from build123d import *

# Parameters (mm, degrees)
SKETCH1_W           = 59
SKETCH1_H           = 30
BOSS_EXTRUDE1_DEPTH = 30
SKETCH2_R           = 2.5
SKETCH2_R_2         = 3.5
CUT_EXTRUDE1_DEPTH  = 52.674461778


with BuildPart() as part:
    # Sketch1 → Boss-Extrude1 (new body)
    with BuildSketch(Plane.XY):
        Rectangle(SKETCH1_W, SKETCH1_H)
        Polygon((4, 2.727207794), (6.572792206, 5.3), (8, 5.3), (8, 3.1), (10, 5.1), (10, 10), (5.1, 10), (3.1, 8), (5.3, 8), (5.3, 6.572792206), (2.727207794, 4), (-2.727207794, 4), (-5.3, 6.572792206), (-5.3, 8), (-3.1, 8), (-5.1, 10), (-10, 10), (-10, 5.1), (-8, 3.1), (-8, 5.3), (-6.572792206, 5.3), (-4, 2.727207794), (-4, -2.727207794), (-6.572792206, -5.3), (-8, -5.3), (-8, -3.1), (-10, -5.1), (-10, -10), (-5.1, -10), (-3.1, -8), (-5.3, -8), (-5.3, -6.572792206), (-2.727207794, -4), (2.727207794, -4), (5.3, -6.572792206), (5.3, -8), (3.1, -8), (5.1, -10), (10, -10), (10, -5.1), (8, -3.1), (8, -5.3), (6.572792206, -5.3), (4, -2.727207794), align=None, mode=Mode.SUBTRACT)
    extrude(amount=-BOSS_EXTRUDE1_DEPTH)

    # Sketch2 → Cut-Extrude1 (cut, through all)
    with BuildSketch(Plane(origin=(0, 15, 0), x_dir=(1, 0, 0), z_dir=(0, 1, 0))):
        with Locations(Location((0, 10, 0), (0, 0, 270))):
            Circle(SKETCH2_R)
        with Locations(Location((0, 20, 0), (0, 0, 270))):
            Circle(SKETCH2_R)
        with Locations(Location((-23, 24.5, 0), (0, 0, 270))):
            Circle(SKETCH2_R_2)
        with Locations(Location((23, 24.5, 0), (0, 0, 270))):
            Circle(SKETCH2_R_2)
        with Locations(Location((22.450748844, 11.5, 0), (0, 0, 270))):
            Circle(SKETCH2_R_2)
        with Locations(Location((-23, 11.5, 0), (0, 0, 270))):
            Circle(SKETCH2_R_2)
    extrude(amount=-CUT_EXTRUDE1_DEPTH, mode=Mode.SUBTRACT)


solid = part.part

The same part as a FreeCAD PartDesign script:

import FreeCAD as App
import Part
import Sketcher
from FreeCAD import Vector

doc = App.newDocument("Part")
params = doc.addObject("Spreadsheet::Sheet", "Params")
for row, (alias, value) in enumerate([
    ("sketch1_width", "59 mm"),
    ("sketch1_height", "30 mm"),
    ("sketch1_width2", "4.9 mm"),
    ("sketch1_width3", "2.2 mm"),
    ("pad1_length", "30 mm"),
    ("sketch2_diameter", "5 mm"),
    ("sketch2_diameter2", "7 mm"),
], start=1):
    params.set(f"A{row}", alias)
    params.set(f"B{row}", "=" + value)
    params.setAlias(f"B{row}", alias)

body = doc.addObject("PartDesign::Body", "Body")

# Sketch on XY plane
sketch1 = body.newObject("Sketcher::SketchObject", "Sketch")
sketch1.AttachmentSupport = (doc.getObject("XY_Plane"), [""])
sketch1.MapMode = "FlatFace"
sketch1.addGeometry([
    Part.LineSegment(Vector(-29.5, 15, 0), Vector(-29.5, -15, 0)),  # 0
    Part.LineSegment(Vector(-29.5, -15, 0), Vector(29.5, -15, 0)),  # 1
    Part.LineSegment(Vector(29.5, -15, 0), Vector(29.5, 15, 0)),  # 2
    Part.LineSegment(Vector(29.5, 15, 0), Vector(-29.5, 15, 0)),  # 3
    Part.LineSegment(Vector(6.572792, 5.3, 0), Vector(4, 2.727208, 0)),  # 4
    Part.LineSegment(Vector(4, 2.727208, 0), Vector(4, -2.727208, 0)),  # 5
    Part.LineSegment(Vector(4, -2.727208, 0), Vector(6.572792, -5.3, 0)),  # 6
    Part.LineSegment(Vector(6.572792, -5.3, 0), Vector(8, -5.3, 0)),  # 7
    Part.LineSegment(Vector(8, -5.3, 0), Vector(8, -3.1, 0)),  # 8
    Part.LineSegment(Vector(8, -3.1, 0), Vector(10, -5.1, 0)),  # 9
    Part.LineSegment(Vector(10, -5.1, 0), Vector(10, -10, 0)),  # 10
    Part.LineSegment(Vector(10, -10, 0), Vector(5.1, -10, 0)),  # 11
    Part.LineSegment(Vector(5.1, -10, 0), Vector(3.1, -8, 0)),  # 12
    Part.LineSegment(Vector(3.1, -8, 0), Vector(5.3, -8, 0)),  # 13
    Part.LineSegment(Vector(5.3, -8, 0), Vector(5.3, -6.572792, 0)),  # 14
    Part.LineSegment(Vector(5.3, -6.572792, 0), Vector(2.727208, -4, 0)),  # 15
    Part.LineSegment(Vector(2.727208, -4, 0), Vector(-2.727208, -4, 0)),  # 16
    Part.LineSegment(Vector(-2.727208, -4, 0), Vector(-5.3, -6.572792, 0)),  # 17
    Part.LineSegment(Vector(-5.3, -6.572792, 0), Vector(-5.3, -8, 0)),  # 18
    Part.LineSegment(Vector(-5.3, -8, 0), Vector(-3.1, -8, 0)),  # 19
    Part.LineSegment(Vector(-3.1, -8, 0), Vector(-5.1, -10, 0)),  # 20
    Part.LineSegment(Vector(-5.1, -10, 0), Vector(-10, -10, 0)),  # 21
    Part.LineSegment(Vector(-10, -10, 0), Vector(-10, -5.1, 0)),  # 22
    Part.LineSegment(Vector(-10, -5.1, 0), Vector(-8, -3.1, 0)),  # 23
    Part.LineSegment(Vector(-8, -3.1, 0), Vector(-8, -5.3, 0)),  # 24
    Part.LineSegment(Vector(-8, -5.3, 0), Vector(-6.572792, -5.3, 0)),  # 25
    Part.LineSegment(Vector(-6.572792, -5.3, 0), Vector(-4, -2.727208, 0)),  # 26
    Part.LineSegment(Vector(-4, -2.727208, 0), Vector(-4, 2.727208, 0)),  # 27
    Part.LineSegment(Vector(-4, 2.727208, 0), Vector(-6.572792, 5.3, 0)),  # 28
    Part.LineSegment(Vector(-6.572792, 5.3, 0), Vector(-8, 5.3, 0)),  # 29
    Part.LineSegment(Vector(-8, 5.3, 0), Vector(-8, 3.1, 0)),  # 30
    Part.LineSegment(Vector(-8, 3.1, 0), Vector(-10, 5.1, 0)),  # 31
    Part.LineSegment(Vector(-10, 5.1, 0), Vector(-10, 10, 0)),  # 32
    Part.LineSegment(Vector(-10, 10, 0), Vector(-5.1, 10, 0)),  # 33
    Part.LineSegment(Vector(-5.1, 10, 0), Vector(-3.1, 8, 0)),  # 34
    Part.LineSegment(Vector(-3.1, 8, 0), Vector(-5.3, 8, 0)),  # 35
    Part.LineSegment(Vector(-5.3, 8, 0), Vector(-5.3, 6.572792, 0)),  # 36
    Part.LineSegment(Vector(-5.3, 6.572792, 0), Vector(-2.727208, 4, 0)),  # 37
    Part.LineSegment(Vector(-2.727208, 4, 0), Vector(2.727208, 4, 0)),  # 38
    Part.LineSegment(Vector(2.727208, 4, 0), Vector(5.3, 6.572792, 0)),  # 39
    Part.LineSegment(Vector(5.3, 6.572792, 0), Vector(5.3, 8, 0)),  # 40
    Part.LineSegment(Vector(5.3, 8, 0), Vector(3.1, 8, 0)),  # 41
    Part.LineSegment(Vector(3.1, 8, 0), Vector(5.1, 10, 0)),  # 42
    Part.LineSegment(Vector(5.1, 10, 0), Vector(10, 10, 0)),  # 43
    Part.LineSegment(Vector(10, 10, 0), Vector(10, 5.1, 0)),  # 44
    Part.LineSegment(Vector(10, 5.1, 0), Vector(8, 3.1, 0)),  # 45
    Part.LineSegment(Vector(8, 3.1, 0), Vector(8, 5.3, 0)),  # 46
    Part.LineSegment(Vector(8, 5.3, 0), Vector(6.572792, 5.3, 0)),  # 47
], False)
sketch1.addConstraint([
    Sketcher.Constraint("Coincident", 0, 2, 1, 1),
    Sketcher.Constraint("Coincident", 1, 2, 2, 1),
    Sketcher.Constraint("Coincident", 2, 2, 3, 1),
    Sketcher.Constraint("Coincident", 3, 2, 0, 1),
    Sketcher.Constraint("Coincident", 4, 2, 5, 1),
    Sketcher.Constraint("Coincident", 5, 2, 6, 1),
    Sketcher.Constraint("Coincident", 6, 2, 7, 1),
    Sketcher.Constraint("Coincident", 7, 2, 8, 1),
    Sketcher.Constraint("Coincident", 8, 2, 9, 1),
    Sketcher.Constraint("Coincident", 9, 2, 10, 1),
    Sketcher.Constraint("Coincident", 10, 2, 11, 1),
    Sketcher.Constraint("Coincident", 11, 2, 12, 1),
    Sketcher.Constraint("Coincident", 12, 2, 13, 1),
    Sketcher.Constraint("Coincident", 13, 2, 14, 1),
    Sketcher.Constraint("Coincident", 14, 2, 15, 1),
    Sketcher.Constraint("Coincident", 15, 2, 16, 1),
    Sketcher.Constraint("Coincident", 16, 2, 17, 1),
    Sketcher.Constraint("Coincident", 17, 2, 18, 1),
    Sketcher.Constraint("Coincident", 18, 2, 19, 1),
    Sketcher.Constraint("Coincident", 19, 2, 20, 1),
    Sketcher.Constraint("Coincident", 20, 2, 21, 1),
    Sketcher.Constraint("Coincident", 21, 2, 22, 1),
    Sketcher.Constraint("Coincident", 22, 2, 23, 1),
    Sketcher.Constraint("Coincident", 23, 2, 24, 1),
    Sketcher.Constraint("Coincident", 24, 2, 25, 1),
    Sketcher.Constraint("Coincident", 25, 2, 26, 1),
    Sketcher.Constraint("Coincident", 26, 2, 27, 1),
    Sketcher.Constraint("Coincident", 27, 2, 28, 1),
    Sketcher.Constraint("Coincident", 28, 2, 29, 1),
    Sketcher.Constraint("Coincident", 29, 2, 30, 1),
    Sketcher.Constraint("Coincident", 30, 2, 31, 1),
    Sketcher.Constraint("Coincident", 31, 2, 32, 1),
    Sketcher.Constraint("Coincident", 32, 2, 33, 1),
    Sketcher.Constraint("Coincident", 33, 2, 34, 1),
    Sketcher.Constraint("Coincident", 34, 2, 35, 1),
    Sketcher.Constraint("Coincident", 35, 2, 36, 1),
    Sketcher.Constraint("Coincident", 36, 2, 37, 1),
    Sketcher.Constraint("Coincident", 37, 2, 38, 1),
    Sketcher.Constraint("Coincident", 38, 2, 39, 1),
    Sketcher.Constraint("Coincident", 39, 2, 40, 1),
    Sketcher.Constraint("Coincident", 40, 2, 41, 1),
    Sketcher.Constraint("Coincident", 41, 2, 42, 1),
    Sketcher.Constraint("Coincident", 42, 2, 43, 1),
    Sketcher.Constraint("Coincident", 43, 2, 44, 1),
    Sketcher.Constraint("Coincident", 44, 2, 45, 1),
    Sketcher.Constraint("Coincident", 45, 2, 46, 1),
    Sketcher.Constraint("Coincident", 46, 2, 47, 1),
    Sketcher.Constraint("Coincident", 47, 2, 4, 1),
    Sketcher.Constraint("Vertical", 0),
    Sketcher.Constraint("Horizontal", 1),
    Sketcher.Constraint("Vertical", 2),
    Sketcher.Constraint("Horizontal", 3),
    Sketcher.Constraint("Vertical", 5),
    Sketcher.Constraint("Horizontal", 7),
    Sketcher.Constraint("Vertical", 8),
    Sketcher.Constraint("Vertical", 10),
    Sketcher.Constraint("Horizontal", 11),
    Sketcher.Constraint("Horizontal", 13),
    Sketcher.Constraint("Vertical", 14),
    Sketcher.Constraint("Horizontal", 16),
    Sketcher.Constraint("Vertical", 18),
    Sketcher.Constraint("Horizontal", 19),
    Sketcher.Constraint("Horizontal", 21),
    Sketcher.Constraint("Vertical", 22),
    Sketcher.Constraint("Vertical", 24),
    Sketcher.Constraint("Horizontal", 25),
    Sketcher.Constraint("Vertical", 27),
    Sketcher.Constraint("Horizontal", 29),
    Sketcher.Constraint("Vertical", 30),
    Sketcher.Constraint("Vertical", 32),
    Sketcher.Constraint("Horizontal", 33),
    Sketcher.Constraint("Horizontal", 35),
    Sketcher.Constraint("Vertical", 36),
    Sketcher.Constraint("Horizontal", 38),
    Sketcher.Constraint("Vertical", 40),
    Sketcher.Constraint("Horizontal", 41),
    Sketcher.Constraint("Horizontal", 43),
    Sketcher.Constraint("Vertical", 44),
    Sketcher.Constraint("Vertical", 46),
    Sketcher.Constraint("Horizontal", 47),
    Sketcher.Constraint("Symmetric", 0, 2, 2, 2, -1, 1),
    Sketcher.Constraint("Symmetric", 4, 2, 26, 2, -1, 1),
    Sketcher.Constraint("Symmetric", 6, 2, 28, 2, -1, 1),
    Sketcher.Constraint("Symmetric", 8, 2, 30, 2, -1, 1),
    Sketcher.Constraint("Symmetric", 9, 2, 31, 2, -1, 1),
    Sketcher.Constraint("Symmetric", 11, 2, 33, 2, -1, 1),
    Sketcher.Constraint("Symmetric", 12, 2, 34, 2, -1, 1),
    Sketcher.Constraint("Symmetric", 14, 2, 36, 2, -1, 1),
    Sketcher.Constraint("Symmetric", 15, 2, 37, 2, -1, 1),
    Sketcher.Constraint("Symmetric", 17, 2, 39, 2, -1, 1),
    Sketcher.Constraint("Symmetric", 19, 2, 41, 2, -1, 1),
    Sketcher.Constraint("Symmetric", 20, 2, 42, 2, -1, 1),
    Sketcher.Constraint("Symmetric", 22, 2, 44, 2, -1, 1),
    Sketcher.Constraint("Symmetric", 23, 2, 45, 2, -1, 1),
    Sketcher.Constraint("Symmetric", 25, 2, 47, 2, -1, 1),
    Sketcher.Constraint("Symmetric", 14, 2, 17, 2, -2),
    Sketcher.Constraint("Symmetric", 12, 2, 19, 2, -2),
    Sketcher.Constraint("Symmetric", 11, 2, 20, 2, -2),
    Sketcher.Constraint("Symmetric", 9, 2, 22, 2, -2),
    Sketcher.Constraint("Symmetric", 8, 2, 23, 2, -2),
    Sketcher.Constraint("Symmetric", 6, 2, 25, 2, -2),
    Sketcher.Constraint("Perpendicular", 4, 6),
    Sketcher.Constraint("Parallel", 6, 9),
    Sketcher.Constraint("Parallel", 9, 12),
    Sketcher.Constraint("Parallel", 12, 15),
    Sketcher.Constraint("Perpendicular", 15, 17),
    Sketcher.Constraint("Parallel", 17, 20),
    Sketcher.Constraint("Perpendicular", 26, 28),
    Sketcher.Constraint("Perpendicular", 37, 39),
    Sketcher.Constraint("Equal", 38, 5),
    Sketcher.Constraint("Equal", 41, 8),
    Sketcher.Constraint("Equal", 43, 10),
    Sketcher.Constraint("Equal", 47, 14),
    Sketcher.Constraint("Equal", 9, 12),
    Sketcher.Constraint("Equal", 6, 15),
    Sketcher.Constraint("DistanceX", 1, 1, 1, 2, 59.0),
    Sketcher.Constraint("DistanceY", 0, 2, 0, 1, 30.0),
    Sketcher.Constraint("DistanceX", 11, 2, 11, 1, 4.9),
    Sketcher.Constraint("DistanceX", 13, 1, 13, 2, 2.2),
    Sketcher.Constraint("DistanceX", -1, 1, 4, 2, 4.0),
    Sketcher.Constraint("DistanceX", -1, 1, 7, 2, 8.0),
    Sketcher.Constraint("DistanceX", -1, 1, 9, 2, 10.0),
    Sketcher.Constraint("DistanceX", 7, 1, 7, 2, 1.427208),
])
sketch1.setExpression("Constraints[115]", "Params.sketch1_width")
sketch1.setExpression("Constraints[116]", "Params.sketch1_height")
sketch1.setExpression("Constraints[117]", "Params.sketch1_width2")
sketch1.setExpression("Constraints[118]", "Params.sketch1_width3")
pad1 = body.newObject("PartDesign::Pad", "Pad")
pad1.Profile = sketch1
pad1.setExpression("Length", "Params.pad1_length")
pad1.Reversed = True

# Sketch on XZ plane
sketch2 = body.newObject("Sketcher::SketchObject", "Sketch001")
sketch2.AttachmentSupport = (doc.getObject("XZ_Plane"), [""])
sketch2.MapMode = "FlatFace"
sketch2.AttachmentOffset = App.Placement(Vector(0, 0, -15), App.Rotation())
sketch2.addGeometry([
    Part.Circle(Vector(0, -10, 0), Vector(0, 0, 1), 2.5),  # 0
    Part.Circle(Vector(0, -20, 0), Vector(0, 0, 1), 2.5),  # 1
    Part.Circle(Vector(-23, -24.5, 0), Vector(0, 0, 1), 3.5),  # 2
    Part.Circle(Vector(23, -24.5, 0), Vector(0, 0, 1), 3.5),  # 3
    Part.Circle(Vector(22.450749, -11.5, 0), Vector(0, 0, 1), 3.5),  # 4
    Part.Circle(Vector(-23, -11.5, 0), Vector(0, 0, 1), 3.5),  # 5
], False)
sketch2.addConstraint([
    Sketcher.Constraint("Equal", 0, 1),
    Sketcher.Constraint("Equal", 2, 3),
    Sketcher.Constraint("Equal", 3, 4),
    Sketcher.Constraint("Equal", 4, 5),
    Sketcher.Constraint("Symmetric", 2, 3, 3, 3, -2),
    Sketcher.Constraint("PointOnObject", 0, 3, -2),
    Sketcher.Constraint("PointOnObject", 1, 3, -2),
    Sketcher.Constraint("Horizontal", 4, 3, 5, 3),
    Sketcher.Constraint("Vertical", 2, 3, 5, 3),
    Sketcher.Constraint("Diameter", 0, 5.0),
    Sketcher.Constraint("Diameter", 2, 7.0),
    Sketcher.Constraint("DistanceY", 0, 3, -1, 1, 10.0),
    Sketcher.Constraint("DistanceY", 1, 3, -1, 1, 20.0),
    Sketcher.Constraint("DistanceX", 2, 3, -1, 1, 23.0),
    Sketcher.Constraint("DistanceY", 3, 3, 4, 3, 13.0),
    Sketcher.Constraint("DistanceY", 2, 3, -1, 1, 24.5),
    Sketcher.Constraint("DistanceX", -1, 1, 4, 3, 22.450749),
])
sketch2.setExpression("Constraints[9]", "Params.sketch2_diameter")
sketch2.setExpression("Constraints[10]", "Params.sketch2_diameter2")
pocket1 = body.newObject("PartDesign::Pocket", "Pocket")
pocket1.Profile = sketch2
pocket1.Type = "ThroughAll"
pocket1.Reversed = True

doc.recompute()
